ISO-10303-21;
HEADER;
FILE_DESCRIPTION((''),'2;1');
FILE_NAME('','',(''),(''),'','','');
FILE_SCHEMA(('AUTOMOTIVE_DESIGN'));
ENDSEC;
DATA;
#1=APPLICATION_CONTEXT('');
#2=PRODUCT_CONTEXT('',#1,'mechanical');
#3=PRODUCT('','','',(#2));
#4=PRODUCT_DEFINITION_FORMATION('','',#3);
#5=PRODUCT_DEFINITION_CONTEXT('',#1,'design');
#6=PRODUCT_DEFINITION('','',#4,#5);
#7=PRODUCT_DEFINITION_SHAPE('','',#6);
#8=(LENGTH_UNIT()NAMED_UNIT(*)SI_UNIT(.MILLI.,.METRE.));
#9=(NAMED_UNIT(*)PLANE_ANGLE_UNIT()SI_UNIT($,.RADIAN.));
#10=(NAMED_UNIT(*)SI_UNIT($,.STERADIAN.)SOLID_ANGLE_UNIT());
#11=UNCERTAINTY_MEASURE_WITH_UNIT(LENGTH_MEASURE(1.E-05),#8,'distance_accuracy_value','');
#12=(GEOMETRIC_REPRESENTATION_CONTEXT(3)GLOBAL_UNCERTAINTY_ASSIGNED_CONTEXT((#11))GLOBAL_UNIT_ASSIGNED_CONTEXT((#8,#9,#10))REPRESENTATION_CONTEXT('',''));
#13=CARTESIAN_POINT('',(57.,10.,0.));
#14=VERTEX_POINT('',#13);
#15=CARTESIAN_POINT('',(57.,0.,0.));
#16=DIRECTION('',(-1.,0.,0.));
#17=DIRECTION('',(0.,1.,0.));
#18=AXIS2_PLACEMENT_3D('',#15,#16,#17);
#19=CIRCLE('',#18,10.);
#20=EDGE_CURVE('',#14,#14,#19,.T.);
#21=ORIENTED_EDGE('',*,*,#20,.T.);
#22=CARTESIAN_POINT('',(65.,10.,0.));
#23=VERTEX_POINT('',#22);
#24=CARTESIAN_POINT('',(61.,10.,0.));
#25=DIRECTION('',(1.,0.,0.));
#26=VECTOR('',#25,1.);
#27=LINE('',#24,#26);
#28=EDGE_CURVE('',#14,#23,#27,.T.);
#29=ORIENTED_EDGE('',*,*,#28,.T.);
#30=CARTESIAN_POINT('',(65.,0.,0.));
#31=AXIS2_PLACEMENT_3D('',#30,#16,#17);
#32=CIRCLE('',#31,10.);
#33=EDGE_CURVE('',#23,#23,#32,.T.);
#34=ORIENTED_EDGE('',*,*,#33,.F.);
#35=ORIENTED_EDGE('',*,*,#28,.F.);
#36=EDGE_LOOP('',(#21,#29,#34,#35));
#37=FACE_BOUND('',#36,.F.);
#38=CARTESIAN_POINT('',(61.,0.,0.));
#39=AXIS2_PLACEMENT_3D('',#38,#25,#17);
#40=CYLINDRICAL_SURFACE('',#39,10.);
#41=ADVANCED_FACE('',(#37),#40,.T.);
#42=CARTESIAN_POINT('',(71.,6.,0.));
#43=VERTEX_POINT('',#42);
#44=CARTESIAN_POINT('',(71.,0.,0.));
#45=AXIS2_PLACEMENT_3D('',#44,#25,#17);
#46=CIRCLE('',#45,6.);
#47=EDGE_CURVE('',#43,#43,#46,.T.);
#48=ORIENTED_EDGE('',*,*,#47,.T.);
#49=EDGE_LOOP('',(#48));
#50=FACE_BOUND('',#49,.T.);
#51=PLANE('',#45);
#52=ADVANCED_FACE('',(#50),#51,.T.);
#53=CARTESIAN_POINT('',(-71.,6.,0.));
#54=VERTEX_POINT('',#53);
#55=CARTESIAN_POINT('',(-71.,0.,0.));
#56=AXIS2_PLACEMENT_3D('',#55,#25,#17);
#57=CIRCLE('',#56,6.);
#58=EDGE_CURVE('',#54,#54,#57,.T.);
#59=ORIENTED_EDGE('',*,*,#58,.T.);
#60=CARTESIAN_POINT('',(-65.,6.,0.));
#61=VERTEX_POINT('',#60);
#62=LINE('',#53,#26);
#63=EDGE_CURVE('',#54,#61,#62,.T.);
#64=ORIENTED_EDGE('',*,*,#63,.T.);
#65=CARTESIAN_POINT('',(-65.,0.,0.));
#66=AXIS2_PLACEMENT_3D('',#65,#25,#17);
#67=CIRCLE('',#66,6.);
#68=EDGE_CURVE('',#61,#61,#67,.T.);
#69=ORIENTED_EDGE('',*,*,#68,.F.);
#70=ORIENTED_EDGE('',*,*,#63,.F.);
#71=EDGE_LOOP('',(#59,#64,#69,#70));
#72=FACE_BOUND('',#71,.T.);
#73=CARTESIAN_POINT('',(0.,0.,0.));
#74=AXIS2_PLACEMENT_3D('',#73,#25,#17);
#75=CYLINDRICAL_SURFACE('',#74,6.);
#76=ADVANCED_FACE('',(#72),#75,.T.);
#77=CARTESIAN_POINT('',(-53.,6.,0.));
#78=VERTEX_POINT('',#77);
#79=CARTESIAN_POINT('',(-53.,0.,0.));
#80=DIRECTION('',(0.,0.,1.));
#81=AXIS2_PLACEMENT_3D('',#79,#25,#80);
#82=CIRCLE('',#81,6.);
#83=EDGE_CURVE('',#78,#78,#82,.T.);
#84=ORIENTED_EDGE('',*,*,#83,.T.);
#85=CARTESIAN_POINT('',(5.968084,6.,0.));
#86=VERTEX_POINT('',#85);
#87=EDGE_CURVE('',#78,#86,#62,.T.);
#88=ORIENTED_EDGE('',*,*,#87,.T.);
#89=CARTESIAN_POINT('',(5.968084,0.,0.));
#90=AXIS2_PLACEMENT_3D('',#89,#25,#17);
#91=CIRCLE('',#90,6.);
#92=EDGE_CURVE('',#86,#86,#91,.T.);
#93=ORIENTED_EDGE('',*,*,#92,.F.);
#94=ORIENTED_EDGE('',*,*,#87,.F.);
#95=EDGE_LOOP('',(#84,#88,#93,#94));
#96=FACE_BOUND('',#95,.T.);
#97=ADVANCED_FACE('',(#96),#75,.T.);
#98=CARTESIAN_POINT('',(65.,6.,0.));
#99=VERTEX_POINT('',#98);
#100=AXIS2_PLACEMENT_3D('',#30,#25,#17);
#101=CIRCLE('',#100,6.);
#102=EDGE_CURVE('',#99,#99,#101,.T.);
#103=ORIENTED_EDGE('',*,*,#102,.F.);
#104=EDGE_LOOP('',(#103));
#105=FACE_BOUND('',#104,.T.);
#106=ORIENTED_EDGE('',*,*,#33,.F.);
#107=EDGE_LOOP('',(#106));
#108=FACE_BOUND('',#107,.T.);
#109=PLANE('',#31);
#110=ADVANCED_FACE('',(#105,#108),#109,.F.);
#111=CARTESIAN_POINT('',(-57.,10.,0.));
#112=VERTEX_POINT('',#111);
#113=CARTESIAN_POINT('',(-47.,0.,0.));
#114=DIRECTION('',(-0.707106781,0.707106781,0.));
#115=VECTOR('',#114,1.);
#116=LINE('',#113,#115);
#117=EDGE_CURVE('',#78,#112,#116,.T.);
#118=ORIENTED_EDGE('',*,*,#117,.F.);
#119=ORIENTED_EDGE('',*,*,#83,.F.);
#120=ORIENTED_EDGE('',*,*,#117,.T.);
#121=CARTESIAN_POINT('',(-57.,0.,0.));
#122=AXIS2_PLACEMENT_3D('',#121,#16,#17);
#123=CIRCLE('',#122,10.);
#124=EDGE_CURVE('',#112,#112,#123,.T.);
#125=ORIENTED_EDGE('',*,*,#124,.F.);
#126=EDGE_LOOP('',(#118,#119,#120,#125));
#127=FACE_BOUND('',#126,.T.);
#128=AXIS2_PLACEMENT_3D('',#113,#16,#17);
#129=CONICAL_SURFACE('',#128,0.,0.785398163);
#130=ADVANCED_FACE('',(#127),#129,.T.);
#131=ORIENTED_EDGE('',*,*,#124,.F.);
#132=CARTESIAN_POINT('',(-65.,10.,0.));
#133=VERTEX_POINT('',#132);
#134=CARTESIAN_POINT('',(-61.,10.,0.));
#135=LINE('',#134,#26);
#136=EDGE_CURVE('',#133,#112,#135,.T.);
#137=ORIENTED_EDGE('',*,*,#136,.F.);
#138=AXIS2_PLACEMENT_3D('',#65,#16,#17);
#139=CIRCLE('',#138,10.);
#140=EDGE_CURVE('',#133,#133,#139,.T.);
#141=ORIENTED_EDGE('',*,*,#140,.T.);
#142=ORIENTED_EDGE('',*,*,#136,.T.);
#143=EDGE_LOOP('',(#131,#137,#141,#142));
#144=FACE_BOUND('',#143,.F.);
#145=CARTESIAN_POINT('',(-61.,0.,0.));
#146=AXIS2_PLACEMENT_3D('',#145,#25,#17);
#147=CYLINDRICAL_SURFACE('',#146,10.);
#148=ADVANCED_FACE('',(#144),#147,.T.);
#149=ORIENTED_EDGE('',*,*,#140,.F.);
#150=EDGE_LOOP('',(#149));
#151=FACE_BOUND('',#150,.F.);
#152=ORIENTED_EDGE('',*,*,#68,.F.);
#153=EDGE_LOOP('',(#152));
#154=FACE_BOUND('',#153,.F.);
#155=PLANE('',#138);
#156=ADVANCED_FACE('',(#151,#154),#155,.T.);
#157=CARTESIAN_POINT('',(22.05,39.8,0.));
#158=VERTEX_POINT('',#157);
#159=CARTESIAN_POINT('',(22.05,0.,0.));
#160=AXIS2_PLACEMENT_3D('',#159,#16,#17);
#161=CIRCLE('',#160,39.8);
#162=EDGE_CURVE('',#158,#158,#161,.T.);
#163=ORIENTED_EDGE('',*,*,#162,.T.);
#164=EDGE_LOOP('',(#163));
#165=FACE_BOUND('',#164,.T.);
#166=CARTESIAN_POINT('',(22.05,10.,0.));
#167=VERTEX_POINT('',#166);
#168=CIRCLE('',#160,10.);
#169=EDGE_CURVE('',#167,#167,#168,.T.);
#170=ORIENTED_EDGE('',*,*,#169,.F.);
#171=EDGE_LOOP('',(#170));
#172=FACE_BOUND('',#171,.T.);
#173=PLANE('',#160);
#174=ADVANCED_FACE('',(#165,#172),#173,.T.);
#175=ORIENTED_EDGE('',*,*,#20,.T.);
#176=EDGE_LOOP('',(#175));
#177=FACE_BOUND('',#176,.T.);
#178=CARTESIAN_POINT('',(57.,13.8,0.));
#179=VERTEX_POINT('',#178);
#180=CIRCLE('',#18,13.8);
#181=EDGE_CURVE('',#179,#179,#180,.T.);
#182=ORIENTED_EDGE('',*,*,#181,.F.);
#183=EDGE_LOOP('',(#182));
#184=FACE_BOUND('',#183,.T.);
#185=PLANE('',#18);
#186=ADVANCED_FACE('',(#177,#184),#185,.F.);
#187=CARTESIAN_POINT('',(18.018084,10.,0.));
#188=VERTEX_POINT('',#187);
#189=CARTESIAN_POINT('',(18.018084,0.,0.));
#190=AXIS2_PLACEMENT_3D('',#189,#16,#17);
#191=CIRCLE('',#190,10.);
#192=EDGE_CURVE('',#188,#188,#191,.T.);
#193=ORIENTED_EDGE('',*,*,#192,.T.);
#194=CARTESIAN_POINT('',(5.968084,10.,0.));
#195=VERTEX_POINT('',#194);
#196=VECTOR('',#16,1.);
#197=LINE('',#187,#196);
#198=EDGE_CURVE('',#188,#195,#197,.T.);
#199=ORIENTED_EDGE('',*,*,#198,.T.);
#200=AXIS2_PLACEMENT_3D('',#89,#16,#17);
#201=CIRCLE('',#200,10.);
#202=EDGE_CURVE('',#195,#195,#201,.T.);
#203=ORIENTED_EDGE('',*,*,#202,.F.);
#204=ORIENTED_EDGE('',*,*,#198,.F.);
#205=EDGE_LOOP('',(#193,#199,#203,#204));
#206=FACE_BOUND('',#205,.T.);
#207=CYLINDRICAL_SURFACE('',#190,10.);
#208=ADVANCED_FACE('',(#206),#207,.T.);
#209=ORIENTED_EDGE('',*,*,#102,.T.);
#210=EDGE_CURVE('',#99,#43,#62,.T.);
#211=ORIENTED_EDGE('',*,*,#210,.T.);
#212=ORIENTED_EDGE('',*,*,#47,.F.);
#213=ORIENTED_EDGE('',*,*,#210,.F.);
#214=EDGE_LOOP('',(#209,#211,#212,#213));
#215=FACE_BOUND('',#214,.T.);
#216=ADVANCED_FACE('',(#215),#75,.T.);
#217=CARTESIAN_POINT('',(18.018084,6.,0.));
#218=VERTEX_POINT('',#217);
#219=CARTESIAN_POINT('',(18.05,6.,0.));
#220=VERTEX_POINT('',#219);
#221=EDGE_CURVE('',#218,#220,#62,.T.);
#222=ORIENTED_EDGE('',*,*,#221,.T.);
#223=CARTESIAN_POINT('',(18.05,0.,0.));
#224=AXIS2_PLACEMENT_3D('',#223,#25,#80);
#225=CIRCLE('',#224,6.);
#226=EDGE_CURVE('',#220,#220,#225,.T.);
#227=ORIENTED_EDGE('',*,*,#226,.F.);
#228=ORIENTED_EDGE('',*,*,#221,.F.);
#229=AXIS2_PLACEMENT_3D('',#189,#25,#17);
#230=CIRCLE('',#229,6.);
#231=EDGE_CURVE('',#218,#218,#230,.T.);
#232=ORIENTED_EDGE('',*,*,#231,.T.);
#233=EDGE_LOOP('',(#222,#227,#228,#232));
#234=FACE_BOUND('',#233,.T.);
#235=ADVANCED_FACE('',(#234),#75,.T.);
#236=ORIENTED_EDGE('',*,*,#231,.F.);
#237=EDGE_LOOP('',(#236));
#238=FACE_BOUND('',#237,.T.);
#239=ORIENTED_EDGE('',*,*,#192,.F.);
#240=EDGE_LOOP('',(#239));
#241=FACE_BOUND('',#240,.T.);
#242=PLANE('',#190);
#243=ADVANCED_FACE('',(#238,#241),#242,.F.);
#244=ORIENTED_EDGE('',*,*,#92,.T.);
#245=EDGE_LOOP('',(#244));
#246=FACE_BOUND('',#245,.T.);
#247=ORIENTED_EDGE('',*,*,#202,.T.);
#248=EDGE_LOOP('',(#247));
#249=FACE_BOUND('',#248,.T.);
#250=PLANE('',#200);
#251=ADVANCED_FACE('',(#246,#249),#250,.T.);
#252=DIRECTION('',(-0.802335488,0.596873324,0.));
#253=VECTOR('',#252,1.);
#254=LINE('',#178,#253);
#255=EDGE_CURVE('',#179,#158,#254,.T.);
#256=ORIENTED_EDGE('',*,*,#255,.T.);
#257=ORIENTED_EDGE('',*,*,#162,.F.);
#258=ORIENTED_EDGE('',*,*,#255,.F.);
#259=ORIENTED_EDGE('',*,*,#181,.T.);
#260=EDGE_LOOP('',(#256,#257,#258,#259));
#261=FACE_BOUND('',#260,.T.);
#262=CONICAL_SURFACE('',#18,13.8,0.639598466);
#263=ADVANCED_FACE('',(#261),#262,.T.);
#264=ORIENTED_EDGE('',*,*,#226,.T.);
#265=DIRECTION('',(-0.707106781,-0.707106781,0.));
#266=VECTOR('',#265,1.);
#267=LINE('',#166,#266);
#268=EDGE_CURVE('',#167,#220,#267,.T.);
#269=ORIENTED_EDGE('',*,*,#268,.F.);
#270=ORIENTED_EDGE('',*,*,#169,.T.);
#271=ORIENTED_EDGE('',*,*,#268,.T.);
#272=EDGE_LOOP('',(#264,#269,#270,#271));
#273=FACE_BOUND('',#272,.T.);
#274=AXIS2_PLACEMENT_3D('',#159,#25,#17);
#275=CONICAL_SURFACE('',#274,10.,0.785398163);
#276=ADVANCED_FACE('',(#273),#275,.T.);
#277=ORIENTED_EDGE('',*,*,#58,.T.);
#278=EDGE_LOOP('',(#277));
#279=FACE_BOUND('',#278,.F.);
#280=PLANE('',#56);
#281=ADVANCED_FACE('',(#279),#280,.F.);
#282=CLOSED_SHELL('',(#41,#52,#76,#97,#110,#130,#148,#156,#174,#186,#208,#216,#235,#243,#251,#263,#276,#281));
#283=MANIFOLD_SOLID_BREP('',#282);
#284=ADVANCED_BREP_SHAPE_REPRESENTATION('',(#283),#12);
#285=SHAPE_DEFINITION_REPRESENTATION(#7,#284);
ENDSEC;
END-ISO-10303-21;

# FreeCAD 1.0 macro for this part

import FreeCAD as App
import Part
import Sketcher
Q = App.Units.Quantity


def add_polygon(sketch, points):
    """Adds a closed chain of lines whose ends are joined by coincident constraints."""
    first, n = sketch.GeometryCount, len(points)
    for a, b in zip(points, points[1:] + points[:1]):
        sketch.addGeometry(Part.LineSegment(App.Vector(*a, 0), App.Vector(*b, 0)), False)
    for i in range(n):
        sketch.addConstraint(Sketcher.Constraint("Coincident", first + i, 2, first + (i + 1) % n, 1))

doc = App.newDocument("Part")
body = doc.addObject("PartDesign::Body", "Body")

sketch1 = body.newObject("Sketcher::SketchObject", "Sketch")
sketch1.AttachmentSupport = (doc.getObject("YZ_Plane"), [""])
sketch1.MapMode = "FlatFace"
sketch1.addGeometry(Part.Circle(App.Vector(0, 0, 0), App.Vector(0, 0, 1), 6), False)
sketch1.addConstraint(Sketcher.Constraint("Coincident", 0, 3, -1, 1))
sketch1.addConstraint(Sketcher.Constraint("Diameter", 0, Q("12 mm")))
pad1 = body.newObject("PartDesign::Pad", "Pad")
pad1.Profile = sketch1
pad1.Length = 142
pad1.Midplane = True

sketch2 = body.newObject("Sketcher::SketchObject", "Sketch001")
sketch2.AttachmentSupport = (doc.getObject("XY_Plane"), [""])
sketch2.MapMode = "FlatFace"
add_polygon(sketch2, [(6, 10), (6, 0), (65, 0), (65, 10), (57, 10), (57, 13.8), (22.1, 39.8), (22.1, 10), (18, 6), (18, 10)])
add_polygon(sketch2, [(-47, 0), (-57, 10), (-65, 10), (-65, 0)])
sketch2.addConstraint(Sketcher.Constraint("Vertical", 0))
sketch2.addConstraint(Sketcher.Constraint("Horizontal", 1))
sketch2.addConstraint(Sketcher.Constraint("Vertical", 2))
sketch2.addConstraint(Sketcher.Constraint("Horizontal", 3))
sketch2.addConstraint(Sketcher.Constraint("Vertical", 4))
sketch2.addConstraint(Sketcher.Constraint("Vertical", 6))
sketch2.addConstraint(Sketcher.Constraint("Vertical", 8))
sketch2.addConstraint(Sketcher.Constraint("Horizontal", 9))
sketch2.addConstraint(Sketcher.Constraint("Horizontal", 11))
sketch2.addConstraint(Sketcher.Constraint("Vertical", 12))
sketch2.addConstraint(Sketcher.Constraint("Horizontal", 13))
sketch2.addConstraint(Sketcher.Constraint("Symmetric", 1, 2, 12, 2, -1, 1))
sketch2.addConstraint(Sketcher.Constraint("Symmetric", 3, 2, 10, 2, -2))
sketch2.addConstraint(Sketcher.Constraint("PointOnObject", 0, 2, -1))
sketch2.addConstraint(Sketcher.Constraint("Perpendicular", 7, 10))
sketch2.addConstraint(Sketcher.Constraint("Horizontal", 3, 2, 6, 2))
sketch2.addConstraint(Sketcher.Constraint("Horizontal", 6, 2, 8, 2))
sketch2.addConstraint(Sketcher.Constraint("DistanceX", 3, 2, 3, 1, Q("8 mm")))
sketch2.addConstraint(Sketcher.Constraint("DistanceX", 13, 1, 13, 2, Q("18 mm")))
sketch2.addConstraint(Sketcher.Constraint("DistanceY", 0, 2, 0, 1, Q("10 mm")))
sketch2.addConstraint(Sketcher.Constraint("DistanceY", 4, 1, 4, 2, Q("3.8 mm")))
sketch2.addConstraint(Sketcher.Constraint("DistanceY", 6, 2, 6, 1, Q("29.8 mm")))
sketch2.addConstraint(Sketcher.Constraint("DistanceX", -1, 1, 1, 2, Q("65 mm")))
sketch2.addConstraint(Sketcher.Constraint("DistanceX", 9, 2, 9, 1, Q("12.05 mm")))
sketch2.addConstraint(Sketcher.Constraint("DistanceX", -1, 1, 5, 2, Q("22.05 mm")))
sketch2.addConstraint(Sketcher.Constraint("Distance", 7, Q("5.70199 mm")))
revolution = body.newObject("PartDesign::Revolution", "Revolution")
revolution.Profile = sketch2
revolution.ReferenceAxis = (sketch2, ["H_Axis"])
revolution.Angle = 360

doc.recompute()
